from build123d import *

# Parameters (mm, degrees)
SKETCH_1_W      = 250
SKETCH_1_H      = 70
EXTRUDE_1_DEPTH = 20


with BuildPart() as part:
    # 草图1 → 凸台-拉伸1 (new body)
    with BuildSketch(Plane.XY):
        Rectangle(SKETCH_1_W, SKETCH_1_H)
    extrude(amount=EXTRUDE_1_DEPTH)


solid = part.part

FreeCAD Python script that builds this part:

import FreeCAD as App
import Part
import Sketcher


def add_polygon(sketch, points):
    """Adds a closed chain of lines whose ends are joined by coincident constraints."""
    first, n = sketch.GeometryCount, len(points)
    for a, b in zip(points, points[1:] + points[:1]):
        sketch.addGeometry(Part.LineSegment(App.Vector(*a, 0), App.Vector(*b, 0)), False)
    for i in range(n):
        sketch.addConstraint(Sketcher.Constraint("Coincident", first + i, 2, first + (i + 1) % n, 1))

doc = App.newDocument("Part")
params = doc.addObject("Spreadsheet::Sheet", "Params")
for row, (alias, value) in enumerate([
    ("sketch1_width", "250 mm"),
    ("sketch1_height", "70 mm"),
    ("pad1_length", "20 mm"),
], start=1):
    params.set(f"A{row}", alias)
    params.set(f"B{row}", "=" + value)
    params.setAlias(f"B{row}", alias)

body = doc.addObject("PartDesign::Body", "Body")

# Sketch on XY plane
sketch1 = doc.addObject("Sketcher::SketchObject", "Sketch")
body.addObject(sketch1)
sketch1.AttachmentSupport = (doc.XY_Plane, [""])
sketch1.MapMode = "FlatFace"
add_polygon(sketch1, [(-125, 35), (-125, -35), (125, -35), (125, 35)])  # lines 0-3
sketch1.addConstraint([
    Sketcher.Constraint("Vertical", 0),
    Sketcher.Constraint("Horizontal", 1),
    Sketcher.Constraint("Vertical", 2),
    Sketcher.Constraint("Horizontal", 3),
    Sketcher.Constraint("Symmetric", 0, 2, 2, 2, -1, 1),
    Sketcher.Constraint("DistanceX", 1, 1, 1, 2, 250.0),
    Sketcher.Constraint("DistanceY", 0, 2, 0, 1, 70.0),
])
sketch1.setExpression("Constraints[9]", "Params.sketch1_width")
sketch1.setExpression("Constraints[10]", "Params.sketch1_height")
pad1 = doc.addObject("PartDesign::Pad", "Pad")
body.addObject(pad1)
pad1.Profile = sketch1
pad1.setExpression("Length", "Params.pad1_length")

doc.recompute()
